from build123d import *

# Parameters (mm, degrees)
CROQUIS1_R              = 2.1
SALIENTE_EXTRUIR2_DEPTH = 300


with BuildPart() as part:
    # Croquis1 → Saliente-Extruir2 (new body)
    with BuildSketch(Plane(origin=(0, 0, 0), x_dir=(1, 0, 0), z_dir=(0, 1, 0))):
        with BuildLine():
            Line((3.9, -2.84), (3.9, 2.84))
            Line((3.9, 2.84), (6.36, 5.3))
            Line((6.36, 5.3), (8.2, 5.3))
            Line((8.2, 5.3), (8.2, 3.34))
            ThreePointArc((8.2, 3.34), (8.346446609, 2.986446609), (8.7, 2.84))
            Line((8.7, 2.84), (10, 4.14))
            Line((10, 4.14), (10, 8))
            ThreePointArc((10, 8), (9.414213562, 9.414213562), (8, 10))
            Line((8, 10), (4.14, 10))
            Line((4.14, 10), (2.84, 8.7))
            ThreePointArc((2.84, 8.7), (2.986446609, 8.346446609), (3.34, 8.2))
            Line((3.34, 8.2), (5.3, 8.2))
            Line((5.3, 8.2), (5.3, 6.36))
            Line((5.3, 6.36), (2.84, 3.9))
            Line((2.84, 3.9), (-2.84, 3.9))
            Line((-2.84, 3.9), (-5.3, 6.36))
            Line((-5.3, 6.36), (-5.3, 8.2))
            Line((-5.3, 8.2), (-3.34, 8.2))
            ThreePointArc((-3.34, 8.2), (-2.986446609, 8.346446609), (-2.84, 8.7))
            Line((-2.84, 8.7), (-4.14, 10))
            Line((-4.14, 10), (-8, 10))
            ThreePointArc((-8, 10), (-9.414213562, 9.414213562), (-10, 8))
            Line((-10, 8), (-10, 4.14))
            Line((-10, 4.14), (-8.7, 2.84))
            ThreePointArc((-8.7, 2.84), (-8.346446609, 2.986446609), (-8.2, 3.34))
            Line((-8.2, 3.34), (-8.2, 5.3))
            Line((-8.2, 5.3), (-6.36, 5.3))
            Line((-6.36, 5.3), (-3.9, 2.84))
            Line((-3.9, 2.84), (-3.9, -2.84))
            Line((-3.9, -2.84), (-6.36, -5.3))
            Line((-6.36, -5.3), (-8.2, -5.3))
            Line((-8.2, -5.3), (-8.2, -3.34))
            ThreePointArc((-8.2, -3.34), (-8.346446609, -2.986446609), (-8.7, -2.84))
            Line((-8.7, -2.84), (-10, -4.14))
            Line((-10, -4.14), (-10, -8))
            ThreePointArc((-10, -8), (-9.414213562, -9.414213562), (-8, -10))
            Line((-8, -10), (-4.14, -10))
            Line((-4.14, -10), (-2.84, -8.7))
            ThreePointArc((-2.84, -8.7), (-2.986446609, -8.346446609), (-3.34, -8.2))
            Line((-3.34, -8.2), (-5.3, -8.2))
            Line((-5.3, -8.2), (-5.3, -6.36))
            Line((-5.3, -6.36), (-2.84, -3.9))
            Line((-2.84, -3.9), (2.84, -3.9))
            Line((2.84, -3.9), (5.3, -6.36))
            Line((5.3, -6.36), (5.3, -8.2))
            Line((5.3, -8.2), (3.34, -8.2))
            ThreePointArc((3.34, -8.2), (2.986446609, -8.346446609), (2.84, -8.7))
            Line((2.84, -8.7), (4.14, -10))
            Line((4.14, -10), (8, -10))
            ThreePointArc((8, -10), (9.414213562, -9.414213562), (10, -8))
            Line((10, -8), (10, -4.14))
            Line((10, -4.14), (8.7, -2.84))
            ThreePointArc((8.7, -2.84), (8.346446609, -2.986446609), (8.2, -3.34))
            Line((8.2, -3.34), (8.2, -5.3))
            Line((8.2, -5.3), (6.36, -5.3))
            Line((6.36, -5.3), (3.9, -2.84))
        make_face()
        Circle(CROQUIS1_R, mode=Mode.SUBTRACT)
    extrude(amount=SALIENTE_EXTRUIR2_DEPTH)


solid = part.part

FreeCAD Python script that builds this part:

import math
import FreeCAD as App
import Part
import Sketcher
Q = App.Units.Quantity

doc = App.newDocument("Part")
params = doc.addObject("Spreadsheet::Sheet", "Params")
for row, (alias, value) in enumerate([
    ("sketch1_radius", "2 mm"),
    ("sketch1_diameter", "4.2 mm"),
    ("sketch1_radius2", "0.5 mm"),
    ("sketch1_width", "1.84 mm"),
    ("sketch1_width2", "3.86 mm"),
    ("pad1_length", "300 mm"),
], start=1):
    params.set(f"A{row}", alias)
    params.set(f"B{row}", "=" + value)
    params.setAlias(f"B{row}", alias)

body = doc.addObject("PartDesign::Body", "Body")

# Sketch on XZ plane
sketch1 = body.newObject("Sketcher::SketchObject", "Sketch")
sketch1.AttachmentSupport = (doc.getObject("XZ_Plane"), [""])
sketch1.MapMode = "FlatFace"
sketch1.addGeometry(Part.LineSegment(App.Vector(3.9, 2.84, 0), App.Vector(3.9, -2.84, 0)), False)
sketch1.addGeometry(Part.LineSegment(App.Vector(3.9, -2.84, 0), App.Vector(6.36, -5.3, 0)), False)
sketch1.addGeometry(Part.LineSegment(App.Vector(6.36, -5.3, 0), App.Vector(8.2, -5.3, 0)), False)
sketch1.addGeometry(Part.LineSegment(App.Vector(8.2, -5.3, 0), App.Vector(8.2, -3.34, 0)), False)
sketch1.addGeometry(Part.ArcOfCircle(Part.Circle(App.Vector(8.7, -3.34, 0), App.Vector(0, 0, 1), 0.5), math.radians(90), math.radians(180)), False)
sketch1.addGeometry(Part.LineSegment(App.Vector(8.7, -2.84, 0), App.Vector(10, -4.14, 0)), False)
sketch1.addGeometry(Part.LineSegment(App.Vector(10, -4.14, 0), App.Vector(10, -8, 0)), False)
sketch1.addGeometry(Part.ArcOfCircle(Part.Circle(App.Vector(8, -8, 0), App.Vector(0, 0, 1), 2), math.radians(-90), math.radians(0)), False)
sketch1.addGeometry(Part.LineSegment(App.Vector(8, -10, 0), App.Vector(4.14, -10, 0)), False)
sketch1.addGeometry(Part.LineSegment(App.Vector(4.14, -10, 0), App.Vector(2.84, -8.7, 0)), False)
sketch1.addGeometry(Part.ArcOfCircle(Part.Circle(App.Vector(3.34, -8.7, 0), App.Vector(0, 0, 1), 0.5), math.radians(90), math.radians(180)), False)
sketch1.addGeometry(Part.LineSegment(App.Vector(3.34, -8.2, 0), App.Vector(5.3, -8.2, 0)), False)
sketch1.addGeometry(Part.LineSegment(App.Vector(5.3, -8.2, 0), App.Vector(5.3, -6.36, 0)), False)
sketch1.addGeometry(Part.LineSegment(App.Vector(5.3, -6.36, 0), App.Vector(2.84, -3.9, 0)), False)
sketch1.addGeometry(Part.LineSegment(App.Vector(2.84, -3.9, 0), App.Vector(-2.84, -3.9, 0)), False)
sketch1.addGeometry(Part.LineSegment(App.Vector(-2.84, -3.9, 0), App.Vector(-5.3, -6.36, 0)), False)
sketch1.addGeometry(Part.LineSegment(App.Vector(-5.3, -6.36, 0), App.Vector(-5.3, -8.2, 0)), False)
sketch1.addGeometry(Part.LineSegment(App.Vector(-5.3, -8.2, 0), App.Vector(-3.34, -8.2, 0)), False)
sketch1.addGeometry(Part.ArcOfCircle(Part.Circle(App.Vector(-3.34, -8.7, 0), App.Vector(0, 0, 1), 0.5), math.radians(0), math.radians(90)), False)
sketch1.addGeometry(Part.LineSegment(App.Vector(-2.84, -8.7, 0), App.Vector(-4.14, -10, 0)), False)
sketch1.addGeometry(Part.LineSegment(App.Vector(-4.14, -10, 0), App.Vector(-8, -10, 0)), False)
sketch1.addGeometry(Part.ArcOfCircle(Part.Circle(App.Vector(-8, -8, 0), App.Vector(0, 0, 1), 2), math.radians(-180), math.radians(-90)), False)
sketch1.addGeometry(Part.LineSegment(App.Vector(-10, -8, 0), App.Vector(-10, -4.14, 0)), False)
sketch1.addGeometry(Part.LineSegment(App.Vector(-10, -4.14, 0), App.Vector(-8.7, -2.84, 0)), False)
sketch1.addGeometry(Part.ArcOfCircle(Part.Circle(App.Vector(-8.7, -3.34, 0), App.Vector(0, 0, 1), 0.5), math.radians(0), math.radians(90)), False)
sketch1.addGeometry(Part.LineSegment(App.Vector(-8.2, -3.34, 0), App.Vector(-8.2, -5.3, 0)), False)
sketch1.addGeometry(Part.LineSegment(App.Vector(-8.2, -5.3, 0), App.Vector(-6.36, -5.3, 0)), False)
sketch1.addGeometry(Part.LineSegment(App.Vector(-6.36, -5.3, 0), App.Vector(-3.9, -2.84, 0)), False)
sketch1.addGeometry(Part.LineSegment(App.Vector(-3.9, -2.84, 0), App.Vector(-3.9, 2.84, 0)), False)
sketch1.addGeometry(Part.LineSegment(App.Vector(-3.9, 2.84, 0), App.Vector(-6.36, 5.3, 0)), False)
sketch1.addGeometry(Part.LineSegment(App.Vector(-6.36, 5.3, 0), App.Vector(-8.2, 5.3, 0)), False)
sketch1.addGeometry(Part.LineSegment(App.Vector(-8.2, 5.3, 0), App.Vector(-8.2, 3.34, 0)), False)
sketch1.addGeometry(Part.ArcOfCircle(Part.Circle(App.Vector(-8.7, 3.34, 0), App.Vector(0, 0, 1), 0.5), math.radians(-90), math.radians(0)), False)
sketch1.addGeometry(Part.LineSegment(App.Vector(-8.7, 2.84, 0), App.Vector(-10, 4.14, 0)), False)
sketch1.addGeometry(Part.LineSegment(App.Vector(-10, 4.14, 0), App.Vector(-10, 8, 0)), False)
sketch1.addGeometry(Part.ArcOfCircle(Part.Circle(App.Vector(-8, 8, 0), App.Vector(0, 0, 1), 2), math.radians(90), math.radians(180)), False)
sketch1.addGeometry(Part.LineSegment(App.Vector(-8, 10, 0), App.Vector(-4.14, 10, 0)), False)
sketch1.addGeometry(Part.LineSegment(App.Vector(-4.14, 10, 0), App.Vector(-2.84, 8.7, 0)), False)
sketch1.addGeometry(Part.ArcOfCircle(Part.Circle(App.Vector(-3.34, 8.7, 0), App.Vector(0, 0, 1), 0.5), math.radians(-90), math.radians(0)), False)
sketch1.addGeometry(Part.LineSegment(App.Vector(-3.34, 8.2, 0), App.Vector(-5.3, 8.2, 0)), False)
sketch1.addGeometry(Part.LineSegment(App.Vector(-5.3, 8.2, 0), App.Vector(-5.3, 6.36, 0)), False)
sketch1.addGeometry(Part.LineSegment(App.Vector(-5.3, 6.36, 0), App.Vector(-2.84, 3.9, 0)), False)
sketch1.addGeometry(Part.LineSegment(App.Vector(-2.84, 3.9, 0), App.Vector(2.84, 3.9, 0)), False)
sketch1.addGeometry(Part.LineSegment(App.Vector(2.84, 3.9, 0), App.Vector(5.3, 6.36, 0)), False)
sketch1.addGeometry(Part.LineSegment(App.Vector(5.3, 6.36, 0), App.Vector(5.3, 8.2, 0)), False)
sketch1.addGeometry(Part.LineSegment(App.Vector(5.3, 8.2, 0), App.Vector(3.34, 8.2, 0)), False)
sketch1.addGeometry(Part.ArcOfCircle(Part.Circle(App.Vector(3.34, 8.7, 0), App.Vector(0, 0, 1), 0.5), math.radians(180), math.radians(270)), False)
sketch1.addGeometry(Part.LineSegment(App.Vector(2.84, 8.7, 0), App.Vector(4.14, 10, 0)), False)
sketch1.addGeometry(Part.LineSegment(App.Vector(4.14, 10, 0), App.Vector(8, 10, 0)), False)
sketch1.addGeometry(Part.ArcOfCircle(Part.Circle(App.Vector(8, 8, 0), App.Vector(0, 0, 1), 2), math.radians(0), math.radians(90)), False)
sketch1.addGeometry(Part.LineSegment(App.Vector(10, 8, 0), App.Vector(10, 4.14, 0)), False)
sketch1.addGeometry(Part.LineSegment(App.Vector(10, 4.14, 0), App.Vector(8.7, 2.84, 0)), False)
sketch1.addGeometry(Part.ArcOfCircle(Part.Circle(App.Vector(8.7, 3.34, 0), App.Vector(0, 0, 1), 0.5), math.radians(180), math.radians(270)), False)
sketch1.addGeometry(Part.LineSegment(App.Vector(8.2, 3.34, 0), App.Vector(8.2, 5.3, 0)), False)
sketch1.addGeometry(Part.LineSegment(App.Vector(8.2, 5.3, 0), App.Vector(6.36, 5.3, 0)), False)
sketch1.addGeometry(Part.LineSegment(App.Vector(6.36, 5.3, 0), App.Vector(3.9, 2.84, 0)), False)
sketch1.addGeometry(Part.Circle(App.Vector(0, 0, 0), App.Vector(0, 0, 1), 2.1), False)
sketch1.addConstraint(Sketcher.Constraint("Coincident", 0, 2, 1, 1))
sketch1.addConstraint(Sketcher.Constraint("Coincident", 1, 2, 2, 1))
sketch1.addConstraint(Sketcher.Constraint("Coincident", 2, 2, 3, 1))
sketch1.addConstraint(Sketcher.Constraint("Tangent", 3, 2, 4, 2))
sketch1.addConstraint(Sketcher.Constraint("Coincident", 4, 1, 5, 1))
sketch1.addConstraint(Sketcher.Constraint("Coincident", 5, 2, 6, 1))
sketch1.addConstraint(Sketcher.Constraint("Tangent", 6, 2, 7, 2))
sketch1.addConstraint(Sketcher.Constraint("Tangent", 7, 1, 8, 1))
sketch1.addConstraint(Sketcher.Constraint("Coincident", 8, 2, 9, 1))
sketch1.addConstraint(Sketcher.Constraint("Coincident", 9, 2, 10, 2))
sketch1.addConstraint(Sketcher.Constraint("Tangent", 10, 1, 11, 1))
sketch1.addConstraint(Sketcher.Constraint("Coincident", 11, 2, 12, 1))
sketch1.addConstraint(Sketcher.Constraint("Coincident", 12, 2, 13, 1))
sketch1.addConstraint(Sketcher.Constraint("Coincident", 13, 2, 14, 1))
sketch1.addConstraint(Sketcher.Constraint("Coincident", 14, 2, 15, 1))
sketch1.addConstraint(Sketcher.Constraint("Coincident", 15, 2, 16, 1))
sketch1.addConstraint(Sketcher.Constraint("Coincident", 16, 2, 17, 1))
sketch1.addConstraint(Sketcher.Constraint("Tangent", 17, 2, 18, 2))
sketch1.addConstraint(Sketcher.Constraint("Coincident", 18, 1, 19, 1))
sketch1.addConstraint(Sketcher.Constraint("Coincident", 19, 2, 20, 1))
sketch1.addConstraint(Sketcher.Constraint("Tangent", 20, 2, 21, 2))
sketch1.addConstraint(Sketcher.Constraint("Tangent", 21, 1, 22, 1))
sketch1.addConstraint(Sketcher.Constraint("Coincident", 22, 2, 23, 1))
sketch1.addConstraint(Sketcher.Constraint("Coincident", 23, 2, 24, 2))
sketch1.addConstraint(Sketcher.Constraint("Tangent", 24, 1, 25, 1))
sketch1.addConstraint(Sketcher.Constraint("Coincident", 25, 2, 26, 1))
sketch1.addConstraint(Sketcher.Constraint("Coincident", 26, 2, 27, 1))
sketch1.addConstraint(Sketcher.Constraint("Coincident", 27, 2, 28, 1))
sketch1.addConstraint(Sketcher.Constraint("Coincident", 28, 2, 29, 1))
sketch1.addConstraint(Sketcher.Constraint("Coincident", 29, 2, 30, 1))
sketch1.addConstraint(Sketcher.Constraint("Coincident", 30, 2, 31, 1))
sketch1.addConstraint(Sketcher.Constraint("Tangent", 31, 2, 32, 2))
sketch1.addConstraint(Sketcher.Constraint("Coincident", 32, 1, 33, 1))
sketch1.addConstraint(Sketcher.Constraint("Coincident", 33, 2, 34, 1))
sketch1.addConstraint(Sketcher.Constraint("Tangent", 34, 2, 35, 2))
sketch1.addConstraint(Sketcher.Constraint("Tangent", 35, 1, 36, 1))
sketch1.addConstraint(Sketcher.Constraint("Coincident", 36, 2, 37, 1))
sketch1.addConstraint(Sketcher.Constraint("Coincident", 37, 2, 38, 2))
sketch1.addConstraint(Sketcher.Constraint("Tangent", 38, 1, 39, 1))
sketch1.addConstraint(Sketcher.Constraint("Coincident", 39, 2, 40, 1))
sketch1.addConstraint(Sketcher.Constraint("Coincident", 40, 2, 41, 1))
sketch1.addConstraint(Sketcher.Constraint("Coincident", 41, 2, 42, 1))
sketch1.addConstraint(Sketcher.Constraint("Coincident", 42, 2, 43, 1))
sketch1.addConstraint(Sketcher.Constraint("Coincident", 43, 2, 44, 1))
sketch1.addConstraint(Sketcher.Constraint("Coincident", 44, 2, 45, 1))
sketch1.addConstraint(Sketcher.Constraint("Tangent", 45, 2, 46, 2))
sketch1.addConstraint(Sketcher.Constraint("Coincident", 46, 1, 47, 1))
sketch1.addConstraint(Sketcher.Constraint("Coincident", 47, 2, 48, 1))
sketch1.addConstraint(Sketcher.Constraint("Tangent", 48, 2, 49, 2))
sketch1.addConstraint(Sketcher.Constraint("Tangent", 49, 1, 50, 1))
sketch1.addConstraint(Sketcher.Constraint("Coincident", 50, 2, 51, 1))
sketch1.addConstraint(Sketcher.Constraint("Coincident", 51, 2, 52, 2))
sketch1.addConstraint(Sketcher.Constraint("Tangent", 52, 1, 53, 1))
sketch1.addConstraint(Sketcher.Constraint("Coincident", 53, 2, 54, 1))
sketch1.addConstraint(Sketcher.Constraint("Coincident", 54, 2, 55, 1))
sketch1.addConstraint(Sketcher.Constraint("Coincident", 55, 2, 0, 1))
sketch1.addConstraint(Sketcher.Constraint("Vertical", 0))
sketch1.addConstraint(Sketcher.Constraint("Horizontal", 2))
sketch1.addConstraint(Sketcher.Constraint("Vertical", 3))
sketch1.addConstraint(Sketcher.Constraint("Vertical", 6))
sketch1.addConstraint(Sketcher.Constraint("Horizontal", 8))
sketch1.addConstraint(Sketcher.Constraint("Horizontal", 11))
sketch1.addConstraint(Sketcher.Constraint("Vertical", 12))
sketch1.addConstraint(Sketcher.Constraint("Horizontal", 14))
sketch1.addConstraint(Sketcher.Constraint("Vertical", 16))
sketch1.addConstraint(Sketcher.Constraint("Horizontal", 17))
sketch1.addConstraint(Sketcher.Constraint("Horizontal", 20))
sketch1.addConstraint(Sketcher.Constraint("Vertical", 22))
sketch1.addConstraint(Sketcher.Constraint("Vertical", 25))
sketch1.addConstraint(Sketcher.Constraint("Horizontal", 26))
sketch1.addConstraint(Sketcher.Constraint("Vertical", 28))
sketch1.addConstraint(Sketcher.Constraint("Horizontal", 30))
sketch1.addConstraint(Sketcher.Constraint("Vertical", 31))
sketch1.addConstraint(Sketcher.Constraint("Vertical", 34))
sketch1.addConstraint(Sketcher.Constraint("Horizontal", 36))
sketch1.addConstraint(Sketcher.Constraint("Horizontal", 39))
sketch1.addConstraint(Sketcher.Constraint("Vertical", 40))
sketch1.addConstraint(Sketcher.Constraint("Horizontal", 42))
sketch1.addConstraint(Sketcher.Constraint("Vertical", 44))
sketch1.addConstraint(Sketcher.Constraint("Horizontal", 45))
sketch1.addConstraint(Sketcher.Constraint("Horizontal", 48))
sketch1.addConstraint(Sketcher.Constraint("Vertical", 50))
sketch1.addConstraint(Sketcher.Constraint("Vertical", 53))
sketch1.addConstraint(Sketcher.Constraint("Horizontal", 54))
sketch1.addConstraint(Sketcher.Constraint("Coincident", 56, 3, -1, 1))
sketch1.addConstraint(Sketcher.Constraint("Equal", 4, 10))
sketch1.addConstraint(Sketcher.Constraint("Equal", 10, 18))
sketch1.addConstraint(Sketcher.Constraint("Equal", 7, 21))
sketch1.addConstraint(Sketcher.Constraint("Equal", 18, 24))
sketch1.addConstraint(Sketcher.Constraint("Equal", 24, 32))
sketch1.addConstraint(Sketcher.Constraint("Equal", 21, 35))
sketch1.addConstraint(Sketcher.Constraint("Equal", 32, 38))
sketch1.addConstraint(Sketcher.Constraint("Equal", 38, 46))
sketch1.addConstraint(Sketcher.Constraint("Equal", 35, 49))
sketch1.addConstraint(Sketcher.Constraint("Equal", 46, 52))
sketch1.addConstraint(Sketcher.Constraint("Symmetric", 4, 3, 32, 3, -1, 1))
sketch1.addConstraint(Sketcher.Constraint("Symmetric", 7, 3, 35, 3, -1, 1))
sketch1.addConstraint(Sketcher.Constraint("Symmetric", 10, 3, 38, 3, -1, 1))
sketch1.addConstraint(Sketcher.Constraint("Symmetric", 18, 3, 46, 3, -1, 1))
sketch1.addConstraint(Sketcher.Constraint("Symmetric", 21, 3, 49, 3, -1, 1))
sketch1.addConstraint(Sketcher.Constraint("Symmetric", 24, 3, 52, 3, -1, 1))
sketch1.addConstraint(Sketcher.Constraint("Symmetric", 0, 2, 28, 2, -1, 1))
sketch1.addConstraint(Sketcher.Constraint("Symmetric", 1, 2, 29, 2, -1, 1))
sketch1.addConstraint(Sketcher.Constraint("Symmetric", 12, 2, 40, 2, -1, 1))
sketch1.addConstraint(Sketcher.Constraint("Symmetric", 13, 2, 41, 2, -1, 1))
sketch1.addConstraint(Sketcher.Constraint("Symmetric", 15, 2, 43, 2, -1, 1))
sketch1.addConstraint(Sketcher.Constraint("Symmetric", 26, 2, 54, 2, -1, 1))
sketch1.addConstraint(Sketcher.Constraint("Symmetric", 10, 3, 18, 3, -2))
sketch1.addConstraint(Sketcher.Constraint("Symmetric", 7, 3, 21, 3, -2))
sketch1.addConstraint(Sketcher.Constraint("Symmetric", 4, 3, 24, 3, -2))
sketch1.addConstraint(Sketcher.Constraint("Symmetric", 12, 2, 15, 2, -2))
sketch1.addConstraint(Sketcher.Constraint("Symmetric", 1, 2, 26, 2, -2))
sketch1.addConstraint(Sketcher.Constraint("Parallel", 1, 5))
sketch1.addConstraint(Sketcher.Constraint("Parallel", 5, 9))
sketch1.addConstraint(Sketcher.Constraint("Parallel", 9, 13))
sketch1.addConstraint(Sketcher.Constraint("Perpendicular", 13, 15))
sketch1.addConstraint(Sketcher.Constraint("Parallel", 15, 19))
sketch1.addConstraint(Sketcher.Constraint("Parallel", 19, 23))
sketch1.addConstraint(Sketcher.Constraint("Parallel", 23, 27))
sketch1.addConstraint(Sketcher.Constraint("Parallel", 29, 33))
sketch1.addConstraint(Sketcher.Constraint("Parallel", 33, 37))
sketch1.addConstraint(Sketcher.Constraint("Perpendicular", 41, 43))
sketch1.addConstraint(Sketcher.Constraint("Parallel", 43, 47))
sketch1.addConstraint(Sketcher.Constraint("Parallel", 47, 51))
sketch1.addConstraint(Sketcher.Constraint("Parallel", 51, 55))
sketch1.addConstraint(Sketcher.Constraint("Horizontal", 0, 2, 4, 1))
sketch1.addConstraint(Sketcher.Constraint("Horizontal", 18, 3, 9, 2))
sketch1.addConstraint(Sketcher.Constraint("Horizontal", 9, 2, 18, 1))
sketch1.addConstraint(Sketcher.Constraint("Horizontal", 5, 2, 22, 2))
sketch1.addConstraint(Sketcher.Constraint("Horizontal", 23, 2, 27, 2))
sketch1.addConstraint(Sketcher.Constraint("Horizontal", 46, 3, 37, 2))
sketch1.addConstraint(Sketcher.Constraint("Horizontal", 37, 2, 46, 1))
sketch1.addConstraint(Sketcher.Constraint("Horizontal", 33, 2, 50, 2))
sketch1.addConstraint(Sketcher.Constraint("Vertical", 52, 3, 4, 1))
sketch1.addConstraint(Sketcher.Constraint("Vertical", 9, 2, 13, 2))
sketch1.addConstraint(Sketcher.Constraint("Vertical", 23, 2, 32, 1))
sketch1.addConstraint(Sketcher.Constraint("Equal", 42, 0))
sketch1.addConstraint(Sketcher.Constraint("Equal", 45, 3))
sketch1.addConstraint(Sketcher.Constraint("Equal", 48, 6))
sketch1.addConstraint(Sketcher.Constraint("Equal", 54, 12))
sketch1.addConstraint(Sketcher.Constraint("Equal", 5, 9))
sketch1.addConstraint(Sketcher.Constraint("Radius", 7, Q("2 mm")))
sketch1.addConstraint(Sketcher.Constraint("Diameter", 56, Q("4.2 mm")))
sketch1.addConstraint(Sketcher.Constraint("Radius", 4, Q("0.5 mm")))
sketch1.addConstraint(Sketcher.Constraint("DistanceX", -1, 1, 7, 3, Q("8 mm")))
sketch1.addConstraint(Sketcher.Constraint("DistanceX", 2, 1, 2, 2, Q("1.84 mm")))
sketch1.addConstraint(Sketcher.Constraint("DistanceX", 8, 2, 8, 1, Q("3.86 mm")))
sketch1.addConstraint(Sketcher.Constraint("DistanceX", 11, 1, 11, 2, Q("1.96 mm")))
sketch1.addConstraint(Sketcher.Constraint("DistanceX", 14, 2, 14, 1, Q("5.68 mm")))
sketch1.setExpression("Constraints[141]", "Params.sketch1_radius")
sketch1.setExpression("Constraints[142]", "Params.sketch1_diameter")
sketch1.setExpression("Constraints[143]", "Params.sketch1_radius2")
sketch1.setExpression("Constraints[145]", "Params.sketch1_width")
sketch1.setExpression("Constraints[146]", "Params.sketch1_width2")
pad1 = body.newObject("PartDesign::Pad", "Pad")
pad1.Profile = sketch1
pad1.setExpression("Length", "Params.pad1_length")
pad1.Reversed = True

doc.recompute()
